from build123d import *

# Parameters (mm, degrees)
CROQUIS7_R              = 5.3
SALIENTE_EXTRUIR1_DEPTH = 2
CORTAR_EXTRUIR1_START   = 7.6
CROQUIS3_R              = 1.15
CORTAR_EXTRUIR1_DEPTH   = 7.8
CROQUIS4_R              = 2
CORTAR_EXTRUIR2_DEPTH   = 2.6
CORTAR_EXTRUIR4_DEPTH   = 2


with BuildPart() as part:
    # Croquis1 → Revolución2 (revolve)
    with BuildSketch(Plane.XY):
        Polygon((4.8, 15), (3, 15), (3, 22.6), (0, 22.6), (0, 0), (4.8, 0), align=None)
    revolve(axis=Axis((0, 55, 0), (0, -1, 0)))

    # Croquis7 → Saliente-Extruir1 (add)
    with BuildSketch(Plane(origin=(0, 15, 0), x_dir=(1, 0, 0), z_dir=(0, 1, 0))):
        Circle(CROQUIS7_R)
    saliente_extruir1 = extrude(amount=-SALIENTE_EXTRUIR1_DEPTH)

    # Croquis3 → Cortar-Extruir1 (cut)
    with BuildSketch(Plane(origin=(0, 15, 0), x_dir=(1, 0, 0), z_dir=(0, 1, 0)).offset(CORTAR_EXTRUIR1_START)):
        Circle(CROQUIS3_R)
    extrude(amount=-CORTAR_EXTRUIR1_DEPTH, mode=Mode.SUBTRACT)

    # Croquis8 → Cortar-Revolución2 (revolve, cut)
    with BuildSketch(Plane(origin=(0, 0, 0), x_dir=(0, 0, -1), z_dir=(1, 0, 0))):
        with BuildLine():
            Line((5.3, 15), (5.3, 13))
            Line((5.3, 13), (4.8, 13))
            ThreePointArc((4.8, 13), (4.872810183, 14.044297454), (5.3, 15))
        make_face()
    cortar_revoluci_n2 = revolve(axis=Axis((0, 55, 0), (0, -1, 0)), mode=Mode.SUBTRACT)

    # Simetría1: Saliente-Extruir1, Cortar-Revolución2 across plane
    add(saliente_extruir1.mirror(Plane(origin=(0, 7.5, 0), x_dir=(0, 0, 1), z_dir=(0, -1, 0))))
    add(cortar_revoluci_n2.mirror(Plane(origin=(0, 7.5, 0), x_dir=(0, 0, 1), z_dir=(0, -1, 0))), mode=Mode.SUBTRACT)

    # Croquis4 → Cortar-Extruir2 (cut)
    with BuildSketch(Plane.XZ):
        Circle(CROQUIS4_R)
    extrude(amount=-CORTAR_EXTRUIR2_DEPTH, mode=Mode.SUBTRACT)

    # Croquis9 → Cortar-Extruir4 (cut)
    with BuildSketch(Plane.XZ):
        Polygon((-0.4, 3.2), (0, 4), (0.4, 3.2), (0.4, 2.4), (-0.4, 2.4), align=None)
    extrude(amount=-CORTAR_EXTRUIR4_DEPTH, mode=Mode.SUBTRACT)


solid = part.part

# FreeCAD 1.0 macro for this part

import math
import FreeCAD as App
import Part
import Sketcher

V = App.Vector
Q = App.Units.Quantity

doc = App.newDocument("Part")
params = doc.addObject("Spreadsheet::Sheet", "Params")
for row, (alias, value) in enumerate([
    ("sketch1_width", "3 mm"),
    ("sketch1_height", "15 mm"),
    ("sketch1_width2", "1.8 mm"),
    ("sketch1_height2", "7.6 mm"),
    ("revolution_angle", "360 deg"),
    ("sketch2_diameter", "10.6 mm"),
    ("pad1_length", "2 mm"),
    ("sketch3_diameter", "2.3 mm"),
    ("pocket1_length", "7.8 mm"),
    ("sketch4_radius", "3 mm"),
    ("sketch4_width", "2 mm"),
    ("sketch4_height", "0.5 mm"),
    ("groove_angle", "360 deg"),
    ("sketch5_diameter", "4 mm"),
    ("pocket2_length", "2.6 mm"),
    ("sketch6_width", "0.8 mm"),
    ("pocket3_length", "2 mm"),
], start=1):
    params.set(f"A{row}", alias)
    params.set(f"B{row}", "=" + value)
    params.setAlias(f"B{row}", alias)

body = doc.addObject("PartDesign::Body", "Body")

# Sketch on XY plane
sketch1 = body.newObject("Sketcher::SketchObject", "Sketch")
sketch1.AttachmentSupport = (doc.getObject("XY_Plane"), [""])
sketch1.MapMode = "FlatFace"
sketch1.addGeometry([
    Part.LineSegment(V(4.8, 15, 0), V(3, 15, 0)),  # 0
    Part.LineSegment(V(3, 15, 0), V(3, 22.6, 0)),  # 1
    Part.LineSegment(V(3, 22.6, 0), V(0, 22.6, 0)),  # 2
    Part.LineSegment(V(0, 22.6, 0), V(0, 0, 0)),  # 3
    Part.LineSegment(V(0, 0, 0), V(4.8, 0, 0)),  # 4
    Part.LineSegment(V(4.8, 0, 0), V(4.8, 15, 0)),  # 5
], False)
sketch1.addConstraint([
    Sketcher.Constraint("Coincident", 0, 2, 1, 1),
    Sketcher.Constraint("Coincident", 1, 2, 2, 1),
    Sketcher.Constraint("Coincident", 2, 2, 3, 1),
    Sketcher.Constraint("Coincident", 3, 2, 4, 1),
    Sketcher.Constraint("Coincident", 4, 2, 5, 1),
    Sketcher.Constraint("Coincident", 5, 2, 0, 1),
    Sketcher.Constraint("Horizontal", 0),
    Sketcher.Constraint("Vertical", 1),
    Sketcher.Constraint("Horizontal", 2),
    Sketcher.Constraint("Vertical", 3),
    Sketcher.Constraint("Horizontal", 4),
    Sketcher.Constraint("Vertical", 5),
    Sketcher.Constraint("Coincident", 3, 2, -1, 1),
    Sketcher.Constraint("DistanceX", 2, 2, 2, 1, Q("3 mm")),
    Sketcher.Constraint("DistanceY", 5, 1, 5, 2, Q("15 mm")),
    Sketcher.Constraint("DistanceX", 0, 2, 0, 1, Q("1.8 mm")),
    Sketcher.Constraint("DistanceY", 1, 1, 1, 2, Q("7.6 mm")),
])
sketch1.setExpression("Constraints[13]", "Params.sketch1_width")
sketch1.setExpression("Constraints[14]", "Params.sketch1_height")
sketch1.setExpression("Constraints[15]", "Params.sketch1_width2")
sketch1.setExpression("Constraints[16]", "Params.sketch1_height2")
revolution = body.newObject("PartDesign::Revolution", "Revolution")
revolution.Profile = sketch1
revolution.ReferenceAxis = (sketch1, ["V_Axis"])
revolution.setExpression("Angle", "Params.revolution_angle")

# Sketch on XZ plane
sketch2 = body.newObject("Sketcher::SketchObject", "Sketch001")
sketch2.AttachmentSupport = (doc.getObject("XZ_Plane"), [""])
sketch2.MapMode = "FlatFace"
sketch2.AttachmentOffset = App.Placement(V(0, 0, -15), App.Rotation())
sketch2.addGeometry(Part.Circle(V(0, 0, 0), V(0, 0, 1), 5.3), False)
sketch2.addConstraint([
    Sketcher.Constraint("Coincident", 0, 3, -1, 1),
    Sketcher.Constraint("Diameter", 0, Q("10.6 mm")),
])
sketch2.setExpression("Constraints[1]", "Params.sketch2_diameter")
pad1 = body.newObject("PartDesign::Pad", "Pad")
pad1.Profile = sketch2
pad1.setExpression("Length", "Params.pad1_length")

# Sketch on XZ plane
sketch3 = body.newObject("Sketcher::SketchObject", "Sketch002")
sketch3.AttachmentSupport = (doc.getObject("XZ_Plane"), [""])
sketch3.MapMode = "FlatFace"
sketch3.AttachmentOffset = App.Placement(V(0, 0, -22.6), App.Rotation())
sketch3.addGeometry(Part.Circle(V(0, 0, 0), V(0, 0, 1), 1.15), False)
sketch3.addConstraint([
    Sketcher.Constraint("Coincident", 0, 3, -1, 1),
    Sketcher.Constraint("Diameter", 0, Q("2.3 mm")),
])
sketch3.setExpression("Constraints[1]", "Params.sketch3_diameter")
pocket1 = body.newObject("PartDesign::Pocket", "Pocket")
pocket1.Profile = sketch3
pocket1.setExpression("Length", "Params.pocket1_length")
pocket1.Reversed = True

# Sketch on YZ plane
sketch4 = body.newObject("Sketcher::SketchObject", "Sketch003")
sketch4.AttachmentSupport = (doc.getObject("YZ_Plane"), [""])
sketch4.MapMode = "FlatFace"
sketch4.addGeometry([
    Part.LineSegment(V(13, -5.3, 0), V(15, -5.3, 0)),
    Part.ArcOfCircle(Part.Circle(V(13.316691, -7.783238, 0), V(0, 0, 1), 3), math.radians(55.867878), math.radians(96.059635)),
    Part.LineSegment(V(13, -4.8, 0), V(13, -5.3, 0)),
], False)
sketch4.addConstraint([
    Sketcher.Constraint("Coincident", 0, 2, 1, 1),
    Sketcher.Constraint("Coincident", 1, 2, 2, 1),
    Sketcher.Constraint("Coincident", 2, 2, 0, 1),
    Sketcher.Constraint("Horizontal", 0),
    Sketcher.Constraint("Vertical", 2),
    Sketcher.Constraint("Radius", 1, Q("3 mm")),
    Sketcher.Constraint("DistanceX", 0, 1, 0, 2, Q("2 mm")),
    Sketcher.Constraint("DistanceY", 2, 2, 2, 1, Q("0.5 mm")),
    Sketcher.Constraint("DistanceX", -1, 1, 0, 2, Q("15 mm")),
    Sketcher.Constraint("DistanceY", 0, 2, -1, 1, Q("5.3 mm")),
])
sketch4.setExpression("Constraints[5]", "Params.sketch4_radius")
sketch4.setExpression("Constraints[6]", "Params.sketch4_width")
sketch4.setExpression("Constraints[7]", "Params.sketch4_height")
groove = body.newObject("PartDesign::Groove", "Groove")
groove.Profile = sketch4
groove.ReferenceAxis = (sketch4, ["H_Axis"])
groove.setExpression("Angle", "Params.groove_angle")
doc.recompute()

datumplane = body.newObject("PartDesign::Plane", "DatumPlane")
datumplane.AttachmentSupport = (doc.getObject("XZ_Plane"), [""])
datumplane.MapMode = "FlatFace"
datumplane.AttachmentOffset = App.Placement(V(0, 0, -7.5), App.Rotation())
mirrored = body.newObject("PartDesign::Mirrored", "Mirrored")
mirrored.Originals = [pad1, groove]
mirrored.MirrorPlane = (datumplane, [""])
body.Tip = mirrored

# Sketch on XZ plane
sketch5 = body.newObject("Sketcher::SketchObject", "Sketch004")
sketch5.AttachmentSupport = (doc.getObject("XZ_Plane"), [""])
sketch5.MapMode = "FlatFace"
sketch5.addGeometry(Part.Circle(V(0, 0, 0), V(0, 0, 1), 2), False)
sketch5.addConstraint([
    Sketcher.Constraint("Coincident", 0, 3, -1, 1),
    Sketcher.Constraint("Diameter", 0, Q("4 mm")),
])
sketch5.setExpression("Constraints[1]", "Params.sketch5_diameter")
pocket2 = body.newObject("PartDesign::Pocket", "Pocket001")
pocket2.Profile = sketch5
pocket2.setExpression("Length", "Params.pocket2_length")

# Sketch on XZ plane
sketch6 = body.newObject("Sketcher::SketchObject", "Sketch005")
sketch6.AttachmentSupport = (doc.getObject("XZ_Plane"), [""])
sketch6.MapMode = "FlatFace"
sketch6.addGeometry([
    Part.LineSegment(V(0, 4, 0), V(-0.4, 3.2, 0)),  # 0
    Part.LineSegment(V(-0.4, 3.2, 0), V(-0.4, 2.4, 0)),  # 1
    Part.LineSegment(V(-0.4, 2.4, 0), V(0.4, 2.4, 0)),  # 2
    Part.LineSegment(V(0.4, 2.4, 0), V(0.4, 3.2, 0)),  # 3
    Part.LineSegment(V(0.4, 3.2, 0), V(0, 4, 0)),  # 4
], False)
sketch6.addConstraint([
    Sketcher.Constraint("Coincident", 0, 2, 1, 1),
    Sketcher.Constraint("Coincident", 1, 2, 2, 1),
    Sketcher.Constraint("Coincident", 2, 2, 3, 1),
    Sketcher.Constraint("Coincident", 3, 2, 4, 1),
    Sketcher.Constraint("Coincident", 4, 2, 0, 1),
    Sketcher.Constraint("Vertical", 1),
    Sketcher.Constraint("Horizontal", 2),
    Sketcher.Constraint("Vertical", 3),
    Sketcher.Constraint("Symmetric", 0, 2, 3, 2, -2),
    Sketcher.Constraint("PointOnObject", 4, 2, -2),
    Sketcher.Constraint("Equal", 2, 1),
    Sketcher.Constraint("DistanceX", 2, 1, 2, 2, Q("0.8 mm")),
    Sketcher.Constraint("DistanceY", -1, 1, 4, 2, Q("4 mm")),
    Sketcher.Constraint("DistanceY", -1, 1, 0, 2, Q("3.2 mm")),
])
sketch6.setExpression("Constraints[11]", "Params.sketch6_width")
pocket3 = body.newObject("PartDesign::Pocket", "Pocket002")
pocket3.Profile = sketch6
pocket3.setExpression("Length", "Params.pocket3_length")

doc.recompute()
